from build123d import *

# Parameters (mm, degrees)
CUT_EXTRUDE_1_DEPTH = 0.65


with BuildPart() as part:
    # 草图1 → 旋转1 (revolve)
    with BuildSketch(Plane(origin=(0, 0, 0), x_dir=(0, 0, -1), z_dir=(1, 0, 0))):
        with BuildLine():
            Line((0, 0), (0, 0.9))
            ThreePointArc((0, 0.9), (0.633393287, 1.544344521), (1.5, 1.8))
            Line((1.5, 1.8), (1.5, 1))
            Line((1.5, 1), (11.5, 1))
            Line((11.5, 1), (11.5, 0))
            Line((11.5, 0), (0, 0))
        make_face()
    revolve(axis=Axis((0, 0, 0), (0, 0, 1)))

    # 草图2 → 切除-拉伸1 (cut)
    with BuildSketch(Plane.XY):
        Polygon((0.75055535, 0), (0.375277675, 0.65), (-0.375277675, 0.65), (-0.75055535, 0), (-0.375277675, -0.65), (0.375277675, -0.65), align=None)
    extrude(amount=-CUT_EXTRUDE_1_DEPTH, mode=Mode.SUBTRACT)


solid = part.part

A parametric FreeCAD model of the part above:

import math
import FreeCAD as App
import Part
import Sketcher
from FreeCAD import Vector
Q = App.Units.Quantity


def add_polygon(sketch, points):
    """Adds a closed chain of lines whose ends are joined by coincident constraints."""
    first, n = sketch.GeometryCount, len(points)
    for a, b in zip(points, points[1:] + points[:1]):
        sketch.addGeometry(Part.LineSegment(App.Vector(*a, 0), App.Vector(*b, 0)), False)
    for i in range(n):
        sketch.addConstraint(Sketcher.Constraint("Coincident", first + i, 2, first + (i + 1) % n, 1))

doc = App.newDocument("Part")
body = doc.addObject("PartDesign::Body", "Body")

sketch1 = body.newObject("Sketcher::SketchObject", "Sketch")
sketch1.AttachmentSupport = (doc.getObject("YZ_Plane"), [""])
sketch1.MapMode = "FlatFace"
sketch1.addGeometry(Part.LineSegment(Vector(0.9, 0, 0), Vector(0, 0, 0)), False)
sketch1.addGeometry(Part.LineSegment(Vector(0, 0, 0), Vector(0, -11.5, 0)), False)
sketch1.addGeometry(Part.LineSegment(Vector(0, -11.5, 0), Vector(1, -11.5, 0)), False)
sketch1.addGeometry(Part.LineSegment(Vector(1, -11.5, 0), Vector(1, -1.5, 0)), False)
sketch1.addGeometry(Part.LineSegment(Vector(1, -1.5, 0), Vector(1.8, -1.5, 0)), False)
sketch1.addGeometry(Part.ArcOfCircle(Part.Circle(Vector(0, -1.56, 0), Vector(0, 0, 1), 1.801), math.radians(1.909152), math.radians(60.018361)), False)
sketch1.addConstraint(Sketcher.Constraint("Coincident", 0, 2, 1, 1))
sketch1.addConstraint(Sketcher.Constraint("Coincident", 1, 2, 2, 1))
sketch1.addConstraint(Sketcher.Constraint("Coincident", 2, 2, 3, 1))
sketch1.addConstraint(Sketcher.Constraint("Coincident", 3, 2, 4, 1))
sketch1.addConstraint(Sketcher.Constraint("Coincident", 4, 2, 5, 1))
sketch1.addConstraint(Sketcher.Constraint("Coincident", 5, 2, 0, 1))
sketch1.addConstraint(Sketcher.Constraint("Horizontal", 0))
sketch1.addConstraint(Sketcher.Constraint("Vertical", 1))
sketch1.addConstraint(Sketcher.Constraint("Horizontal", 2))
sketch1.addConstraint(Sketcher.Constraint("Vertical", 3))
sketch1.addConstraint(Sketcher.Constraint("Horizontal", 4))
sketch1.addConstraint(Sketcher.Constraint("Coincident", 0, 2, -1, 1))
sketch1.addConstraint(Sketcher.Constraint("PointOnObject", 5, 3, -2))
sketch1.addConstraint(Sketcher.Constraint("DistanceX", 2, 1, 2, 2, 1.0))
sketch1.addConstraint(Sketcher.Constraint("DistanceY", 3, 1, 3, 2, 10.0))
sketch1.addConstraint(Sketcher.Constraint("DistanceX", 0, 2, 0, 1, 0.9))
sketch1.addConstraint(Sketcher.Constraint("DistanceX", 4, 1, 4, 2, 0.8))
sketch1.addConstraint(Sketcher.Constraint("DistanceY", 1, 2, 1, 1, 11.5))
revolution = body.newObject("PartDesign::Revolution", "Revolution")
revolution.Profile = sketch1
revolution.ReferenceAxis = (sketch1, ["V_Axis"])
revolution.Angle = 360

sketch2 = body.newObject("Sketcher::SketchObject", "Sketch001")
sketch2.AttachmentSupport = (doc.getObject("XY_Plane"), [""])
sketch2.MapMode = "FlatFace"
add_polygon(sketch2, [(0.750555, 0), (0.375278, 0.65), (-0.375278, 0.65), (-0.750555, 0), (-0.375278, -0.65), (0.375278, -0.65)])
sketch2.addConstraint(Sketcher.Constraint("Horizontal", 1))
sketch2.addConstraint(Sketcher.Constraint("Horizontal", 4))
sketch2.addConstraint(Sketcher.Constraint("Symmetric", 0, 2, 3, 2, -1, 1))
sketch2.addConstraint(Sketcher.Constraint("Symmetric", 2, 2, 5, 2, -1, 1))
sketch2.addConstraint(Sketcher.Constraint("PointOnObject", 2, 2, -1))
sketch2.addConstraint(Sketcher.Constraint("Parallel", 2, 5))
sketch2.addConstraint(Sketcher.Constraint("Vertical", 1, 2, 3, 2))
sketch2.addConstraint(Sketcher.Constraint("Angle", 0, Q("120 deg")))
sketch2.addConstraint(Sketcher.Constraint("DistanceY", 3, 2, 1, 2, 1.3))
sketch2.addConstraint(Sketcher.Constraint("DistanceX", 1, 2, 1, 1, 0.750555))
pocket1 = body.newObject("PartDesign::Pocket", "Pocket")
pocket1.Profile = sketch2
pocket1.Length = 0.65

doc.recompute()
